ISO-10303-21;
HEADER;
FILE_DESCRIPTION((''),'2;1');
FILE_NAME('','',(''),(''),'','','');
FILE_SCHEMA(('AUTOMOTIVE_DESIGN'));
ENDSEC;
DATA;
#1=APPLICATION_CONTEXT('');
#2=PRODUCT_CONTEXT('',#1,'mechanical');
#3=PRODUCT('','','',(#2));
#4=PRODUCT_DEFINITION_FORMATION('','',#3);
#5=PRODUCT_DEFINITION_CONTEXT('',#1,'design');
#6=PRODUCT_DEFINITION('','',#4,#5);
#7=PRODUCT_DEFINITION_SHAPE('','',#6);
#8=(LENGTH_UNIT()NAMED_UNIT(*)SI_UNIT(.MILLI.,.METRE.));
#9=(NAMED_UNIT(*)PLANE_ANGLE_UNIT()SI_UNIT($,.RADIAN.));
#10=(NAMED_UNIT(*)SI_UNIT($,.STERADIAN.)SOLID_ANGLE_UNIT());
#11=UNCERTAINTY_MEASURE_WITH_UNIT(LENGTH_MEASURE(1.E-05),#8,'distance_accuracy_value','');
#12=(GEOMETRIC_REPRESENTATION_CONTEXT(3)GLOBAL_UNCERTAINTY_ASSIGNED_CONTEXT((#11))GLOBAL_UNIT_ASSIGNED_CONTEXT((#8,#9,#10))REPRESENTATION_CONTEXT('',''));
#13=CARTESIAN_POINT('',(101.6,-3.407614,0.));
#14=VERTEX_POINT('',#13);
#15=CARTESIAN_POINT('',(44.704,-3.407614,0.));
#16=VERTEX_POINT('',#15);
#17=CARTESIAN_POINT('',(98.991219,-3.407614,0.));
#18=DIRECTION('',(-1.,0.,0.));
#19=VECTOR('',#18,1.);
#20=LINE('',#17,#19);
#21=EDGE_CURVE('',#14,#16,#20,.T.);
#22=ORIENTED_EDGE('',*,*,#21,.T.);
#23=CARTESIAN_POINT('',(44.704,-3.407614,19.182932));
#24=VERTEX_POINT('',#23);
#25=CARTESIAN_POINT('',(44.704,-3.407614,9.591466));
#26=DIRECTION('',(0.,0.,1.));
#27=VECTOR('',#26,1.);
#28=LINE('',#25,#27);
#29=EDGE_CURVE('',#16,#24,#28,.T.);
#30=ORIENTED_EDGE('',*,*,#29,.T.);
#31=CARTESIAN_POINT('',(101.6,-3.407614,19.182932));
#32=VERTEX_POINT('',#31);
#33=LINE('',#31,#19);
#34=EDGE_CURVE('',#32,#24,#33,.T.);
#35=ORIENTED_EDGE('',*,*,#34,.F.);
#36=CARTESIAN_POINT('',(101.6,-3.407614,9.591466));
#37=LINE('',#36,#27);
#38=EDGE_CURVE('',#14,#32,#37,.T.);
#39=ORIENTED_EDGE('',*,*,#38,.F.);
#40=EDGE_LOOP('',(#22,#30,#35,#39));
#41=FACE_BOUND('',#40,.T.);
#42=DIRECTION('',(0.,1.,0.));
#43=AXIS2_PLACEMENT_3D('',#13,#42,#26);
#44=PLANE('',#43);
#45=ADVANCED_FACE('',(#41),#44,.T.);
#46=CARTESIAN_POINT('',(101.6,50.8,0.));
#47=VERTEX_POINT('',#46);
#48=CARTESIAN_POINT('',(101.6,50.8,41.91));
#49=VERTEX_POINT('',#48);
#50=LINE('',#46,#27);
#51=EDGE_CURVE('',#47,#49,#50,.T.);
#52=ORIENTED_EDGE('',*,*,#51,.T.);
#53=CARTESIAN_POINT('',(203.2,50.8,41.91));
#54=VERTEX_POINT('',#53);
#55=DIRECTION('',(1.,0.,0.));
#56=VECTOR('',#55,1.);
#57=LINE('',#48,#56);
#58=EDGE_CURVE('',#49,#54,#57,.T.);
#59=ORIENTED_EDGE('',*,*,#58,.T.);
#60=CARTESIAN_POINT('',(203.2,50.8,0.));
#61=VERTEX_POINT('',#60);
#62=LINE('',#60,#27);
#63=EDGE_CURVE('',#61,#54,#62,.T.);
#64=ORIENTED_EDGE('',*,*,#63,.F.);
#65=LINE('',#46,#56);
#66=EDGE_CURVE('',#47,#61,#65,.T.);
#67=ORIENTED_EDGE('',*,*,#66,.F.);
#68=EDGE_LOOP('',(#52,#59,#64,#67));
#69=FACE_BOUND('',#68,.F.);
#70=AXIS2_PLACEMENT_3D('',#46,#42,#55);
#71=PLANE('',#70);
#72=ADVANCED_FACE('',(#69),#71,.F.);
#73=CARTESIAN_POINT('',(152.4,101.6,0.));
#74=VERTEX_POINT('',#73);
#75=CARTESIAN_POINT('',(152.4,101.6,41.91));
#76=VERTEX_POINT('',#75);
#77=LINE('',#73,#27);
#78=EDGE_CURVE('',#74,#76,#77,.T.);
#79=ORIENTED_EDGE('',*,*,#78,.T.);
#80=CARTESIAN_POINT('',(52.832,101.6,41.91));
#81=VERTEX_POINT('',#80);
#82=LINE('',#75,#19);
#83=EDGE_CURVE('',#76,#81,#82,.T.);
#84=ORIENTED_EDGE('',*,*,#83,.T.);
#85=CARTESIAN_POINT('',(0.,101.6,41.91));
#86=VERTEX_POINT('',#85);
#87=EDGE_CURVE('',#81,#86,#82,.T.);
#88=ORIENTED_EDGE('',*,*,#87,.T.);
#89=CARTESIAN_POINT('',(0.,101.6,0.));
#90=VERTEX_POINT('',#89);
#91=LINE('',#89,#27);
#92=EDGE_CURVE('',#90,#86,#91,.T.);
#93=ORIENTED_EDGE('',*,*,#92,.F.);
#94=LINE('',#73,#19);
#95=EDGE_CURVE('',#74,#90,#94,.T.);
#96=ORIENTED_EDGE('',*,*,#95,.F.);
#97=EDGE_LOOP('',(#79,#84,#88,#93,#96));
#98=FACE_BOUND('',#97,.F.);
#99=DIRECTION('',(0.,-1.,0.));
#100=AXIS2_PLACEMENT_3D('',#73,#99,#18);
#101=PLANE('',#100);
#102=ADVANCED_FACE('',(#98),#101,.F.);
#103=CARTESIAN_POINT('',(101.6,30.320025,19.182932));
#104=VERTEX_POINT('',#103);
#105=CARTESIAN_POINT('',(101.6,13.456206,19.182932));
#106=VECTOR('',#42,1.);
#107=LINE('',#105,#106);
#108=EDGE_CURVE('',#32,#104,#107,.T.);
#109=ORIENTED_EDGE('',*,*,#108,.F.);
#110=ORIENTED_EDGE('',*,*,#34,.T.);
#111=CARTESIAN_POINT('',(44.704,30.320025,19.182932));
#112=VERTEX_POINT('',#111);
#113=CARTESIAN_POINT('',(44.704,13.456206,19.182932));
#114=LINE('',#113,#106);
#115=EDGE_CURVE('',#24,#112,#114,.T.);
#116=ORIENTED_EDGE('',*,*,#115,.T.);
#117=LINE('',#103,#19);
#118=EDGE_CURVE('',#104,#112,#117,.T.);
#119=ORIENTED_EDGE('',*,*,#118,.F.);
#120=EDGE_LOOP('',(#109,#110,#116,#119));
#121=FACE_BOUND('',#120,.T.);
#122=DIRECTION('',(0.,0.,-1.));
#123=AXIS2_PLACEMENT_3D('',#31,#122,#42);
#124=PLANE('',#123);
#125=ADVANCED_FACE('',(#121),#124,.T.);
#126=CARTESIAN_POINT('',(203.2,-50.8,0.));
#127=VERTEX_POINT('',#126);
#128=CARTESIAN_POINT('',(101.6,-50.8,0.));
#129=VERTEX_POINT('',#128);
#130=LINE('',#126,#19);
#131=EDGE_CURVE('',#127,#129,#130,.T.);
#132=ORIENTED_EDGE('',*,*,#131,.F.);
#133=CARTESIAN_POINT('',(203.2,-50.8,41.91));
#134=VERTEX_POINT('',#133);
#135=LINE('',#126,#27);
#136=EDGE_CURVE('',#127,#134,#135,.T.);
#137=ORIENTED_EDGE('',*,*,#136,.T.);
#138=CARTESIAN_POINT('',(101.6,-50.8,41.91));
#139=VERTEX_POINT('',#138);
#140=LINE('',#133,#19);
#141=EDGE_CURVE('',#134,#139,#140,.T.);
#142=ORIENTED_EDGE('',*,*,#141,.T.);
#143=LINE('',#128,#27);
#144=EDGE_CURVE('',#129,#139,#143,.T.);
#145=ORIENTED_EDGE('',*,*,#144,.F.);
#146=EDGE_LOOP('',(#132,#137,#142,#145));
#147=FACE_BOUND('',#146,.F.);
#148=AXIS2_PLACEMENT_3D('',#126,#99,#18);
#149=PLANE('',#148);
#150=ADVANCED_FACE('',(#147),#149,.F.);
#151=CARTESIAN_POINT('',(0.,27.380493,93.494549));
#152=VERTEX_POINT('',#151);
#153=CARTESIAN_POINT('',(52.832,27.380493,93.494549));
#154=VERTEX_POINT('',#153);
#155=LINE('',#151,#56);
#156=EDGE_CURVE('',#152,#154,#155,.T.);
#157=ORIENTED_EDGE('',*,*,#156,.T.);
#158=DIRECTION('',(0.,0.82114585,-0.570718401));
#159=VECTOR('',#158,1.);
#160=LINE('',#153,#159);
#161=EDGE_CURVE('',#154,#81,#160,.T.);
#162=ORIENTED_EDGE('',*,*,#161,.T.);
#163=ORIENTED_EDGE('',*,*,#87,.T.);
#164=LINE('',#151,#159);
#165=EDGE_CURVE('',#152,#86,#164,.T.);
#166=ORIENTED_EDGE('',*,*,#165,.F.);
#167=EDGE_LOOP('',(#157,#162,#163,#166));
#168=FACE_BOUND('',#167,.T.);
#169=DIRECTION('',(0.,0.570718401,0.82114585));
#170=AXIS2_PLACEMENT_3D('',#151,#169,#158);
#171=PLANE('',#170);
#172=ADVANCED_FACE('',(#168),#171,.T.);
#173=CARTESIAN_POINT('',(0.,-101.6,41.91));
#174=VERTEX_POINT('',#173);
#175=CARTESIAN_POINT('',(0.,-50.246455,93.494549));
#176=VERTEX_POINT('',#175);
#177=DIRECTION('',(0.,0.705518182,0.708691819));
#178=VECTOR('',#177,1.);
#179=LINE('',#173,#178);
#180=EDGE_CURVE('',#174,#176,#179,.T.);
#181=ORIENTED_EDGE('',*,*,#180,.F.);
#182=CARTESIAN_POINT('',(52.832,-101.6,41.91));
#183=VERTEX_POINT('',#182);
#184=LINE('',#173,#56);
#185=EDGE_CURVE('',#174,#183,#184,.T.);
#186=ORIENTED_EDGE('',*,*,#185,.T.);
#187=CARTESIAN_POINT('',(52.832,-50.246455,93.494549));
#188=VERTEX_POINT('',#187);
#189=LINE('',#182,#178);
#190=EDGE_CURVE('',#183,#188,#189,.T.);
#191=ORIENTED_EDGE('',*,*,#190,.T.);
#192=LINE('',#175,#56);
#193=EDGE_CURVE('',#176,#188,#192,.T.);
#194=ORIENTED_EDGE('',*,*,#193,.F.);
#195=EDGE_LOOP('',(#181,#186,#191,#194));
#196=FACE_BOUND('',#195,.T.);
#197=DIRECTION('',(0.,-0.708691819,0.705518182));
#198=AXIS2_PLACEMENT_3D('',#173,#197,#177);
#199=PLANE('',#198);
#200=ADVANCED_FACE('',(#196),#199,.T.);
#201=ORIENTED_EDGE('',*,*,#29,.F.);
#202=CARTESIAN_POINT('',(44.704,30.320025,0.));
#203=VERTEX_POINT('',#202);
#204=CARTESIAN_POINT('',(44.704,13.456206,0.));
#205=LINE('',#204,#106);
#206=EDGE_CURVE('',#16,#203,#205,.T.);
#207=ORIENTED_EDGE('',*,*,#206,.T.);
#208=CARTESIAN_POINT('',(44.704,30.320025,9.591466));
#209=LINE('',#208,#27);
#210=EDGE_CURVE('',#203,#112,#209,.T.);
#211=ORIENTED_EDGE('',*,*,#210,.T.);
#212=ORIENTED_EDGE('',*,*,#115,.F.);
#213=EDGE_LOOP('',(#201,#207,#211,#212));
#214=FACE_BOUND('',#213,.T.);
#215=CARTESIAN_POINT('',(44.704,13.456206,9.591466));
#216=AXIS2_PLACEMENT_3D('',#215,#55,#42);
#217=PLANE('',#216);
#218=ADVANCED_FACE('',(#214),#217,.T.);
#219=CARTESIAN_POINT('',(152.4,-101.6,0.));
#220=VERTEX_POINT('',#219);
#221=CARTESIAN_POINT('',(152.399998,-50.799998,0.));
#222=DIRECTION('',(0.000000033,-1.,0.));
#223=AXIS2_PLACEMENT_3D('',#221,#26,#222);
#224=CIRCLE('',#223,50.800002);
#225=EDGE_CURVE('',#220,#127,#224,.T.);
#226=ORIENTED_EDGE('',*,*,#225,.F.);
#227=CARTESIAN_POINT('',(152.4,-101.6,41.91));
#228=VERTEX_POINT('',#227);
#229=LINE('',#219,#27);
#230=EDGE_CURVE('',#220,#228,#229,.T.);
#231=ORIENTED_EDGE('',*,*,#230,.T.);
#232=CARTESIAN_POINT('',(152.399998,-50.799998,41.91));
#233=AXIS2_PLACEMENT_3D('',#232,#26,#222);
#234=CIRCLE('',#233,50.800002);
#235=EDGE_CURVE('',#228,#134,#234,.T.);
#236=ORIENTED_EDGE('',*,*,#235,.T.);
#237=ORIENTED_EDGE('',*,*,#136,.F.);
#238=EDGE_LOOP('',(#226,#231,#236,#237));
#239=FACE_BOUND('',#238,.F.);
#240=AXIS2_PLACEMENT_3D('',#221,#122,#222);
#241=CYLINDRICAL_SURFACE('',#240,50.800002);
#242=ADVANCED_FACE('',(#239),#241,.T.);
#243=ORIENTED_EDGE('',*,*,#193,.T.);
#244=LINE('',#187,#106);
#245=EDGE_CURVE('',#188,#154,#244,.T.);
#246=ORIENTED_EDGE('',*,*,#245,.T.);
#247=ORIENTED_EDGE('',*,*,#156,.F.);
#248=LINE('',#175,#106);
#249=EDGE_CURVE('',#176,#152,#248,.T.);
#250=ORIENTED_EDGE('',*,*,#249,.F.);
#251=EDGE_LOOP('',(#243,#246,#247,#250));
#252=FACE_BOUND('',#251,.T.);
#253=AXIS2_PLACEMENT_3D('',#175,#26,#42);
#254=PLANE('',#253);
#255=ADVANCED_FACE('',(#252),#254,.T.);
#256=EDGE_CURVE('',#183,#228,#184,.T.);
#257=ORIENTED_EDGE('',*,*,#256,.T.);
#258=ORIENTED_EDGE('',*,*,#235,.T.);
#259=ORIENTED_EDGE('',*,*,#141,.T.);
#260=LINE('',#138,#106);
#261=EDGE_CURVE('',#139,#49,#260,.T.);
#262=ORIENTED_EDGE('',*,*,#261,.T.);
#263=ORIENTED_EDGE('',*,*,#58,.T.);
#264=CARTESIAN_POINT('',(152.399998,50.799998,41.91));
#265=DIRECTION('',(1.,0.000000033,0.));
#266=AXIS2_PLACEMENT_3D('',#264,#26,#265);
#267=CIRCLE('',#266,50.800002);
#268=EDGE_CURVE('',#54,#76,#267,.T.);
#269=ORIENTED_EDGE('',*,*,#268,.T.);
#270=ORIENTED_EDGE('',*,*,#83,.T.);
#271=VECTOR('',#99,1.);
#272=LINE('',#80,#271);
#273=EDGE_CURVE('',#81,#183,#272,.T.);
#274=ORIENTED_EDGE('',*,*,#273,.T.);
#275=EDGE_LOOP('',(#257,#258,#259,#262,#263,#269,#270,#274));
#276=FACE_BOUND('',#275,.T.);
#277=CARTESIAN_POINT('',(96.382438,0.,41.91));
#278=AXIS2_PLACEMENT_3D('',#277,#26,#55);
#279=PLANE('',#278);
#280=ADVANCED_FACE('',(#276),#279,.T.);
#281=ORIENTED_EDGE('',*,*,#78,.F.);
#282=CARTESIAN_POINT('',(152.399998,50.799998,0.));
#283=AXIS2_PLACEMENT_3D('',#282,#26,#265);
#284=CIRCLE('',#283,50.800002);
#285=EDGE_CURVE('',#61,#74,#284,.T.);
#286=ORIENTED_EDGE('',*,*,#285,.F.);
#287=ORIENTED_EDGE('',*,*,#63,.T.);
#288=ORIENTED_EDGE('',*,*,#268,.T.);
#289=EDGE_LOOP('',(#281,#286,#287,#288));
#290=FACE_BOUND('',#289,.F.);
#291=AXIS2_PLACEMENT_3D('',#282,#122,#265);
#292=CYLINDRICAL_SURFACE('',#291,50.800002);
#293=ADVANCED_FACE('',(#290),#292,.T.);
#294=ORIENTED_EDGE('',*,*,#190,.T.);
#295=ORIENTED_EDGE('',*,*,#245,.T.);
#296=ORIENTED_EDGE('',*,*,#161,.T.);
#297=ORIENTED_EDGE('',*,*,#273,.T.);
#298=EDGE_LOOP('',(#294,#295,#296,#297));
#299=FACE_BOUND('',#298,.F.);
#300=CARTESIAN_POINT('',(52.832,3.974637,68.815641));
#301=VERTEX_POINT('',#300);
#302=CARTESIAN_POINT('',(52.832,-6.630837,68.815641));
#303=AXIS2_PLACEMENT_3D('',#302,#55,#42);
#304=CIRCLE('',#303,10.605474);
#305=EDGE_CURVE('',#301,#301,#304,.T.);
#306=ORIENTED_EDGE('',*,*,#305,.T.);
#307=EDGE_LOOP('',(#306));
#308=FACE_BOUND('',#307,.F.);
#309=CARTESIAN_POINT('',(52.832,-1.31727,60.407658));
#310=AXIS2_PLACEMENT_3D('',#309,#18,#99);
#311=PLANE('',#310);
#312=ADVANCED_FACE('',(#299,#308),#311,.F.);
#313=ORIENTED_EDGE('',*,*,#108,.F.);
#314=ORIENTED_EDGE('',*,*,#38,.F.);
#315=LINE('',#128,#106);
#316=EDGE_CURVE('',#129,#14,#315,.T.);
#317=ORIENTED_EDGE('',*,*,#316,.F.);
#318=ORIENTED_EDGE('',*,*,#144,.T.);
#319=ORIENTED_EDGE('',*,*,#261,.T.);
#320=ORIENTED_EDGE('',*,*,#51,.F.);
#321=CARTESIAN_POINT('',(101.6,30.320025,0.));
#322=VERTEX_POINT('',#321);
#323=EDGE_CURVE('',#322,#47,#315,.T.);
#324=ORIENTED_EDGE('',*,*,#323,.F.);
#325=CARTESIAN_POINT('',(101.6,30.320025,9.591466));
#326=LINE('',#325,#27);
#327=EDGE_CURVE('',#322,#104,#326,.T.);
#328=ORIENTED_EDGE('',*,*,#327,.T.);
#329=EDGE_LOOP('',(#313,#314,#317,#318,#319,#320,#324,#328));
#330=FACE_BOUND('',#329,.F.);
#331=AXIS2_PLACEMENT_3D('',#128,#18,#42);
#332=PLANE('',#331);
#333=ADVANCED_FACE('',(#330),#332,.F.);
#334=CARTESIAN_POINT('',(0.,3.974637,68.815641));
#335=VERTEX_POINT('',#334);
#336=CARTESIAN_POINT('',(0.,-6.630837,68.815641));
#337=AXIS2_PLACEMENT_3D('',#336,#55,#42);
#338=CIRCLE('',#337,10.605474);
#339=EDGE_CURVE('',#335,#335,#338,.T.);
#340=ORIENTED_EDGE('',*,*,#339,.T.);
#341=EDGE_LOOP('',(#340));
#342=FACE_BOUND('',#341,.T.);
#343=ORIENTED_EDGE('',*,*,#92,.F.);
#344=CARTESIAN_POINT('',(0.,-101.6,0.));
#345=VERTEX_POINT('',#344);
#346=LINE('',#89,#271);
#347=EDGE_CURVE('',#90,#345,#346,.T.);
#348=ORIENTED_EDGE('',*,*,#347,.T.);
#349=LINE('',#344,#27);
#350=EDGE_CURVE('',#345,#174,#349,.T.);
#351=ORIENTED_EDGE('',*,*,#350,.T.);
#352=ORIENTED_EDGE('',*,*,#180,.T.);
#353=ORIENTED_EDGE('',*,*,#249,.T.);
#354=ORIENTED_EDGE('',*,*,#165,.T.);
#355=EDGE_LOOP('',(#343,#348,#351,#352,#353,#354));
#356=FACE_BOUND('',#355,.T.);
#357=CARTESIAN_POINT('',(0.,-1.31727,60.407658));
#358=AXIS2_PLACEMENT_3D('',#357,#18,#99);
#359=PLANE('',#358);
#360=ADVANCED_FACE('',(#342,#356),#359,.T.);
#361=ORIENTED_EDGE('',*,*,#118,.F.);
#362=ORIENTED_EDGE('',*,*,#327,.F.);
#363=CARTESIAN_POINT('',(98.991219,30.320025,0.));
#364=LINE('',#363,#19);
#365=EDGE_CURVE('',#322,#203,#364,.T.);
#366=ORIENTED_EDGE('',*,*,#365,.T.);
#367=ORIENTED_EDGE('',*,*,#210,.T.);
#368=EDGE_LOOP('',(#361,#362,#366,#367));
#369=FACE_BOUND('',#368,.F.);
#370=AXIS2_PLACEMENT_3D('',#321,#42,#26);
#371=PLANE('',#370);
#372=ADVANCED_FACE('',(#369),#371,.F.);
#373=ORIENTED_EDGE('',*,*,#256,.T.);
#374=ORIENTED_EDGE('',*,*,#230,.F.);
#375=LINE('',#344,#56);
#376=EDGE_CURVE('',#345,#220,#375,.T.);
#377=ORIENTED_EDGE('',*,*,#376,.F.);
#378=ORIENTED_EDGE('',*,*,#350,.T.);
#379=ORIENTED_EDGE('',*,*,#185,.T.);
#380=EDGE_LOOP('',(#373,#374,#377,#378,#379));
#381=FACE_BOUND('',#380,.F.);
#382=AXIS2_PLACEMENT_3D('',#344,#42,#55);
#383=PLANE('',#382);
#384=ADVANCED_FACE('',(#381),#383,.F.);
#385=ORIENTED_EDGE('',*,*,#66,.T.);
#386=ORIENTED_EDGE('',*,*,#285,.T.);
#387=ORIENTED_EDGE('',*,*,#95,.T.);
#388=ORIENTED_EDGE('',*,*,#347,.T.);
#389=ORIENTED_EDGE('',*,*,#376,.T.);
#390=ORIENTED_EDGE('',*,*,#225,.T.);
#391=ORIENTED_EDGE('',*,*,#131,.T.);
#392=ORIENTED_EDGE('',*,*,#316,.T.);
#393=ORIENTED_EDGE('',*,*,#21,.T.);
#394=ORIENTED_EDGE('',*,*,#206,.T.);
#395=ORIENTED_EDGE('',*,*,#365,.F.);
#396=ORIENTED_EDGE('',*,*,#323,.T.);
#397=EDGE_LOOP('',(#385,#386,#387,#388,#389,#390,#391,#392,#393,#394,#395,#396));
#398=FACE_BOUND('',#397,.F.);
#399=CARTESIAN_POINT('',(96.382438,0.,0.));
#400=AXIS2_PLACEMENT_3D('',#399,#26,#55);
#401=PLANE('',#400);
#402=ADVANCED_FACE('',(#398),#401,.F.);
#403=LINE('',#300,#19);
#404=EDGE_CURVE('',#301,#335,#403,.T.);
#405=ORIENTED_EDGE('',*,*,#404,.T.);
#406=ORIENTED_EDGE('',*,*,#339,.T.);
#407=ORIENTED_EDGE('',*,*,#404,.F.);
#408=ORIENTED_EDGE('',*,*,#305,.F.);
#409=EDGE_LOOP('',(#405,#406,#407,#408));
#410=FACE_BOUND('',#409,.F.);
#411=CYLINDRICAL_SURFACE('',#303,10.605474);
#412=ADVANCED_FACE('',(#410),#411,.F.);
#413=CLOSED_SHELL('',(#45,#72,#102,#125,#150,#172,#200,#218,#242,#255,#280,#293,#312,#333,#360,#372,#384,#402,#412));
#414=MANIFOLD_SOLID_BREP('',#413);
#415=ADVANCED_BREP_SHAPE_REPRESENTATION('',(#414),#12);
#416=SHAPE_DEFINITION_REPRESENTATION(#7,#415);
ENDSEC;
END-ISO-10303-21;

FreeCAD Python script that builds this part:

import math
import FreeCAD as App
import Part
import Sketcher
from FreeCAD import Vector
Q = App.Units.Quantity

doc = App.newDocument("Part")
body = doc.addObject("PartDesign::Body", "Body")

# Sketch on XY plane
sketch1 = body.newObject("Sketcher::SketchObject", "Sketch")
sketch1.AttachmentSupport = (doc.getObject("XY_Plane"), [""])
sketch1.MapMode = "FlatFace"
sketch1.addGeometry([
    Part.LineSegment(Vector(0, 102, 0), Vector(0, -102, 0)),  # 0
    Part.LineSegment(Vector(0, -102, 0), Vector(152, -102, 0)),  # 1
    Part.ArcOfCircle(Part.Circle(Vector(152, -51, 0), Vector(0, 0, 1), 51), math.radians(-90), math.radians(0)),  # 2
    Part.LineSegment(Vector(203, -51, 0), Vector(102, -51, 0)),  # 3
    Part.LineSegment(Vector(102, -51, 0), Vector(102, 51, 0)),  # 4
    Part.LineSegment(Vector(102, 51, 0), Vector(203, 51, 0)),  # 5
    Part.ArcOfCircle(Part.Circle(Vector(152, 51, 0), Vector(0, 0, 1), 51), math.radians(0), math.radians(90)),  # 6
    Part.LineSegment(Vector(152, 102, 0), Vector(0, 102, 0)),  # 7
], False)
sketch1.addConstraint([
    Sketcher.Constraint("Coincident", 0, 2, 1, 1),
    Sketcher.Constraint("Tangent", 1, 2, 2, 1),
    Sketcher.Constraint("Coincident", 2, 2, 3, 1),
    Sketcher.Constraint("Coincident", 3, 2, 4, 1),
    Sketcher.Constraint("Coincident", 4, 2, 5, 1),
    Sketcher.Constraint("Coincident", 5, 2, 6, 1),
    Sketcher.Constraint("Tangent", 6, 2, 7, 1),
    Sketcher.Constraint("Coincident", 7, 2, 0, 1),
    Sketcher.Constraint("Vertical", 0),
    Sketcher.Constraint("Horizontal", 1),
    Sketcher.Constraint("Horizontal", 3),
    Sketcher.Constraint("Vertical", 4),
    Sketcher.Constraint("Horizontal", 5),
    Sketcher.Constraint("Horizontal", 7),
    Sketcher.Constraint("Equal", 2, 6),
    Sketcher.Constraint("Symmetric", 0, 2, 7, 2, -1, 1),
    Sketcher.Constraint("Symmetric", 2, 2, 5, 2, -1),
    Sketcher.Constraint("Horizontal", 6, 3, 4, 2),
    Sketcher.Constraint("Equal", 5, 4),
    Sketcher.Constraint("Radius", 2, Q("2.0000001 in")),
    Sketcher.Constraint("DistanceX", 1, 1, 1, 2, Q("6 in")),
    Sketcher.Constraint("DistanceX", 3, 2, 3, 1, Q("4 in")),
])
pad1 = body.newObject("PartDesign::Pad", "Pad")
pad1.Profile = sketch1
pad1.Length = Q("1.65 in")

# Sketch on YZ plane
sketch2 = body.newObject("Sketcher::SketchObject", "Sketch001")
sketch2.AttachmentSupport = (doc.getObject("YZ_Plane"), [""])
sketch2.MapMode = "FlatFace"
sketch2.addGeometry([
    Part.LineSegment(Vector(27, 93, 0), Vector(102, 42, 0)),
    Part.LineSegment(Vector(102, 42, 0), Vector(-102, 42, 0)),
    Part.LineSegment(Vector(-102, 42, 0), Vector(-50, 93, 0)),
    Part.LineSegment(Vector(-50, 93, 0), Vector(27, 93, 0)),
], False)
sketch2.addConstraint([
    Sketcher.Constraint("Coincident", 0, 2, 1, 1),
    Sketcher.Constraint("Coincident", 1, 2, 2, 1),
    Sketcher.Constraint("Coincident", 2, 2, 3, 1),
    Sketcher.Constraint("Coincident", 3, 2, 0, 1),
    Sketcher.Constraint("Horizontal", 1),
    Sketcher.Constraint("Horizontal", 3),
    Sketcher.Constraint("DistanceX", 1, 2, 1, 1, Q("8 in")),
    Sketcher.Constraint("DistanceX", -1, 1, 0, 2, Q("4 in")),
    Sketcher.Constraint("DistanceY", -1, 1, 0, 2, Q("1.65 in")),
    Sketcher.Constraint("DistanceX", 3, 1, 3, 2, 77.626948),
    Sketcher.Constraint("Distance", 0, 90.385291),
    Sketcher.Constraint("DistanceY", -1, 1, 2, 2, 93.494549),
])
pad2 = body.newObject("PartDesign::Pad", "Pad001")
pad2.Profile = sketch2
pad2.Length = Q("2.08 in")

# Sketch on YZ plane
sketch3 = body.newObject("Sketcher::SketchObject", "Sketch002")
sketch3.AttachmentSupport = (doc.getObject("YZ_Plane"), [""])
sketch3.MapMode = "FlatFace"
sketch3.AttachmentOffset = App.Placement(Vector(0, 0, 2.08 * 25.4), App.Rotation())
sketch3.addGeometry(Part.Circle(Vector(-7, 69, 0), Vector(0, 0, 1), 11), False)
sketch3.addConstraint([
    Sketcher.Constraint("Diameter", 0, 21.210948),
    Sketcher.Constraint("DistanceY", -1, 1, 0, 3, 68.815641),
    Sketcher.Constraint("DistanceX", 0, 3, -1, 1, 6.630837),
])
pocket1 = body.newObject("PartDesign::Pocket", "Pocket")
pocket1.Profile = sketch3
pocket1.Length = Q("3.37 in")

# Sketch on YZ plane
sketch4 = body.newObject("Sketcher::SketchObject", "Sketch003")
sketch4.AttachmentSupport = (doc.getObject("YZ_Plane"), [""])
sketch4.MapMode = "FlatFace"
sketch4.AttachmentOffset = App.Placement(Vector(0, 0, 4 * 25.4), App.Rotation())
sketch4.addGeometry([
    Part.LineSegment(Vector(-3, 19, 0), Vector(-3, 0, 0)),
    Part.LineSegment(Vector(-3, 0, 0), Vector(30, 0, 0)),
    Part.LineSegment(Vector(30, 0, 0), Vector(30, 19, 0)),
    Part.LineSegment(Vector(30, 19, 0), Vector(-3, 19, 0)),
], False)
sketch4.addConstraint([
    Sketcher.Constraint("Coincident", 0, 2, 1, 1),
    Sketcher.Constraint("Coincident", 1, 2, 2, 1),
    Sketcher.Constraint("Coincident", 2, 2, 3, 1),
    Sketcher.Constraint("Coincident", 3, 2, 0, 1),
    Sketcher.Constraint("Vertical", 0),
    Sketcher.Constraint("Horizontal", 1),
    Sketcher.Constraint("Vertical", 2),
    Sketcher.Constraint("Horizontal", 3),
    Sketcher.Constraint("PointOnObject", 0, 2, -1),
    Sketcher.Constraint("DistanceX", 1, 1, 1, 2, 33.727639),
    Sketcher.Constraint("DistanceY", 0, 2, 0, 1, 19.182933),
    Sketcher.Constraint("DistanceX", 0, 2, -1, 1, 3.407614),
])
pocket2 = body.newObject("PartDesign::Pocket", "Pocket001")
pocket2.Profile = sketch4
pocket2.Length = Q("2.24 in")

doc.recompute()
